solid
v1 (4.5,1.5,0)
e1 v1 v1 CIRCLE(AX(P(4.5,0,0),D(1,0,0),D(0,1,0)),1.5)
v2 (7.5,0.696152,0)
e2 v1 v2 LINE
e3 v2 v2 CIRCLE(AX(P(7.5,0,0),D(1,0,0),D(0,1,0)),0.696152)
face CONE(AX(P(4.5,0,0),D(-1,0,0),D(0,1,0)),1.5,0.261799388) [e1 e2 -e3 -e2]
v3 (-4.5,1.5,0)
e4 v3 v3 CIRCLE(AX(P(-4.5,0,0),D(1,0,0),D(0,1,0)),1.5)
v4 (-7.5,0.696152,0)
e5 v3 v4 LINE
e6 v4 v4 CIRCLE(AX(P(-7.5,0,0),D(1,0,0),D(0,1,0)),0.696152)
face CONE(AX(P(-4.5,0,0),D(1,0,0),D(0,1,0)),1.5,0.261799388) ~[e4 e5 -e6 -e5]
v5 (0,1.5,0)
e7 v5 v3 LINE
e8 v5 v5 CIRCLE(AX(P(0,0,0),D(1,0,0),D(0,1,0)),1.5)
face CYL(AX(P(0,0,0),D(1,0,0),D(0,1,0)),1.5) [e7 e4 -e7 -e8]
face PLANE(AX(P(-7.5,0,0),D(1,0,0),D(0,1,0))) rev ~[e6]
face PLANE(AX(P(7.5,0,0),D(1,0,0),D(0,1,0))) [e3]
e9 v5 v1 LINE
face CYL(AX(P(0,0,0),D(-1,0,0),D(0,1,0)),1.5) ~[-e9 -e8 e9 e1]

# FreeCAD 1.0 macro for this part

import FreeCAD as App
import Part
import Sketcher
from FreeCAD import Vector
Q = App.Units.Quantity


def edges_at(feature, points):
    """Names of the edges that pass closest to the given points."""
    edges = feature.Shape.Edges
    near = lambda p: min(range(len(edges)), key=lambda i: edges[i].distToShape(Part.Vertex(*p))[0])
    return sorted({f"Edge{near(p) + 1}" for p in points})

doc = App.newDocument("Part")
body = doc.addObject("PartDesign::Body", "Body")

sketch1 = doc.addObject("Sketcher::SketchObject", "Sketch")
body.addObject(sketch1)
sketch1.AttachmentSupport = (doc.YZ_Plane, [""])
sketch1.MapMode = "FlatFace"
sketch1.addGeometry(Part.Circle(Vector(0, 0, 0), Vector(0, 0, 1), 1.5), False)
sketch1.addConstraint(Sketcher.Constraint("Coincident", 0, 3, -1, 1))
sketch1.addConstraint(Sketcher.Constraint("Diameter", 0, Q("3 mm")))
pad1 = doc.addObject("PartDesign::Pad", "Pad")
body.addObject(pad1)
pad1.Profile = sketch1
pad1.Length = 15
pad1.Midplane = True
doc.recompute()

chamfer = doc.addObject("PartDesign::Chamfer", "Chamfer")
body.addObject(chamfer)
chamfer.Base = (pad1, edges_at(pad1, [(7.5, -1.5, 0)]))
chamfer.ChamferType = "Distance and Angle"
chamfer.Size = 3
chamfer.Angle = 15
doc.recompute()

chamfer2 = doc.addObject("PartDesign::Chamfer", "Chamfer001")
body.addObject(chamfer2)
chamfer2.Base = (chamfer, edges_at(chamfer, [(-7.5, -1.5, 0)]))
chamfer2.ChamferType = "Distance and Angle"
chamfer2.Size = 3
chamfer2.Angle = 15

doc.recompute()
